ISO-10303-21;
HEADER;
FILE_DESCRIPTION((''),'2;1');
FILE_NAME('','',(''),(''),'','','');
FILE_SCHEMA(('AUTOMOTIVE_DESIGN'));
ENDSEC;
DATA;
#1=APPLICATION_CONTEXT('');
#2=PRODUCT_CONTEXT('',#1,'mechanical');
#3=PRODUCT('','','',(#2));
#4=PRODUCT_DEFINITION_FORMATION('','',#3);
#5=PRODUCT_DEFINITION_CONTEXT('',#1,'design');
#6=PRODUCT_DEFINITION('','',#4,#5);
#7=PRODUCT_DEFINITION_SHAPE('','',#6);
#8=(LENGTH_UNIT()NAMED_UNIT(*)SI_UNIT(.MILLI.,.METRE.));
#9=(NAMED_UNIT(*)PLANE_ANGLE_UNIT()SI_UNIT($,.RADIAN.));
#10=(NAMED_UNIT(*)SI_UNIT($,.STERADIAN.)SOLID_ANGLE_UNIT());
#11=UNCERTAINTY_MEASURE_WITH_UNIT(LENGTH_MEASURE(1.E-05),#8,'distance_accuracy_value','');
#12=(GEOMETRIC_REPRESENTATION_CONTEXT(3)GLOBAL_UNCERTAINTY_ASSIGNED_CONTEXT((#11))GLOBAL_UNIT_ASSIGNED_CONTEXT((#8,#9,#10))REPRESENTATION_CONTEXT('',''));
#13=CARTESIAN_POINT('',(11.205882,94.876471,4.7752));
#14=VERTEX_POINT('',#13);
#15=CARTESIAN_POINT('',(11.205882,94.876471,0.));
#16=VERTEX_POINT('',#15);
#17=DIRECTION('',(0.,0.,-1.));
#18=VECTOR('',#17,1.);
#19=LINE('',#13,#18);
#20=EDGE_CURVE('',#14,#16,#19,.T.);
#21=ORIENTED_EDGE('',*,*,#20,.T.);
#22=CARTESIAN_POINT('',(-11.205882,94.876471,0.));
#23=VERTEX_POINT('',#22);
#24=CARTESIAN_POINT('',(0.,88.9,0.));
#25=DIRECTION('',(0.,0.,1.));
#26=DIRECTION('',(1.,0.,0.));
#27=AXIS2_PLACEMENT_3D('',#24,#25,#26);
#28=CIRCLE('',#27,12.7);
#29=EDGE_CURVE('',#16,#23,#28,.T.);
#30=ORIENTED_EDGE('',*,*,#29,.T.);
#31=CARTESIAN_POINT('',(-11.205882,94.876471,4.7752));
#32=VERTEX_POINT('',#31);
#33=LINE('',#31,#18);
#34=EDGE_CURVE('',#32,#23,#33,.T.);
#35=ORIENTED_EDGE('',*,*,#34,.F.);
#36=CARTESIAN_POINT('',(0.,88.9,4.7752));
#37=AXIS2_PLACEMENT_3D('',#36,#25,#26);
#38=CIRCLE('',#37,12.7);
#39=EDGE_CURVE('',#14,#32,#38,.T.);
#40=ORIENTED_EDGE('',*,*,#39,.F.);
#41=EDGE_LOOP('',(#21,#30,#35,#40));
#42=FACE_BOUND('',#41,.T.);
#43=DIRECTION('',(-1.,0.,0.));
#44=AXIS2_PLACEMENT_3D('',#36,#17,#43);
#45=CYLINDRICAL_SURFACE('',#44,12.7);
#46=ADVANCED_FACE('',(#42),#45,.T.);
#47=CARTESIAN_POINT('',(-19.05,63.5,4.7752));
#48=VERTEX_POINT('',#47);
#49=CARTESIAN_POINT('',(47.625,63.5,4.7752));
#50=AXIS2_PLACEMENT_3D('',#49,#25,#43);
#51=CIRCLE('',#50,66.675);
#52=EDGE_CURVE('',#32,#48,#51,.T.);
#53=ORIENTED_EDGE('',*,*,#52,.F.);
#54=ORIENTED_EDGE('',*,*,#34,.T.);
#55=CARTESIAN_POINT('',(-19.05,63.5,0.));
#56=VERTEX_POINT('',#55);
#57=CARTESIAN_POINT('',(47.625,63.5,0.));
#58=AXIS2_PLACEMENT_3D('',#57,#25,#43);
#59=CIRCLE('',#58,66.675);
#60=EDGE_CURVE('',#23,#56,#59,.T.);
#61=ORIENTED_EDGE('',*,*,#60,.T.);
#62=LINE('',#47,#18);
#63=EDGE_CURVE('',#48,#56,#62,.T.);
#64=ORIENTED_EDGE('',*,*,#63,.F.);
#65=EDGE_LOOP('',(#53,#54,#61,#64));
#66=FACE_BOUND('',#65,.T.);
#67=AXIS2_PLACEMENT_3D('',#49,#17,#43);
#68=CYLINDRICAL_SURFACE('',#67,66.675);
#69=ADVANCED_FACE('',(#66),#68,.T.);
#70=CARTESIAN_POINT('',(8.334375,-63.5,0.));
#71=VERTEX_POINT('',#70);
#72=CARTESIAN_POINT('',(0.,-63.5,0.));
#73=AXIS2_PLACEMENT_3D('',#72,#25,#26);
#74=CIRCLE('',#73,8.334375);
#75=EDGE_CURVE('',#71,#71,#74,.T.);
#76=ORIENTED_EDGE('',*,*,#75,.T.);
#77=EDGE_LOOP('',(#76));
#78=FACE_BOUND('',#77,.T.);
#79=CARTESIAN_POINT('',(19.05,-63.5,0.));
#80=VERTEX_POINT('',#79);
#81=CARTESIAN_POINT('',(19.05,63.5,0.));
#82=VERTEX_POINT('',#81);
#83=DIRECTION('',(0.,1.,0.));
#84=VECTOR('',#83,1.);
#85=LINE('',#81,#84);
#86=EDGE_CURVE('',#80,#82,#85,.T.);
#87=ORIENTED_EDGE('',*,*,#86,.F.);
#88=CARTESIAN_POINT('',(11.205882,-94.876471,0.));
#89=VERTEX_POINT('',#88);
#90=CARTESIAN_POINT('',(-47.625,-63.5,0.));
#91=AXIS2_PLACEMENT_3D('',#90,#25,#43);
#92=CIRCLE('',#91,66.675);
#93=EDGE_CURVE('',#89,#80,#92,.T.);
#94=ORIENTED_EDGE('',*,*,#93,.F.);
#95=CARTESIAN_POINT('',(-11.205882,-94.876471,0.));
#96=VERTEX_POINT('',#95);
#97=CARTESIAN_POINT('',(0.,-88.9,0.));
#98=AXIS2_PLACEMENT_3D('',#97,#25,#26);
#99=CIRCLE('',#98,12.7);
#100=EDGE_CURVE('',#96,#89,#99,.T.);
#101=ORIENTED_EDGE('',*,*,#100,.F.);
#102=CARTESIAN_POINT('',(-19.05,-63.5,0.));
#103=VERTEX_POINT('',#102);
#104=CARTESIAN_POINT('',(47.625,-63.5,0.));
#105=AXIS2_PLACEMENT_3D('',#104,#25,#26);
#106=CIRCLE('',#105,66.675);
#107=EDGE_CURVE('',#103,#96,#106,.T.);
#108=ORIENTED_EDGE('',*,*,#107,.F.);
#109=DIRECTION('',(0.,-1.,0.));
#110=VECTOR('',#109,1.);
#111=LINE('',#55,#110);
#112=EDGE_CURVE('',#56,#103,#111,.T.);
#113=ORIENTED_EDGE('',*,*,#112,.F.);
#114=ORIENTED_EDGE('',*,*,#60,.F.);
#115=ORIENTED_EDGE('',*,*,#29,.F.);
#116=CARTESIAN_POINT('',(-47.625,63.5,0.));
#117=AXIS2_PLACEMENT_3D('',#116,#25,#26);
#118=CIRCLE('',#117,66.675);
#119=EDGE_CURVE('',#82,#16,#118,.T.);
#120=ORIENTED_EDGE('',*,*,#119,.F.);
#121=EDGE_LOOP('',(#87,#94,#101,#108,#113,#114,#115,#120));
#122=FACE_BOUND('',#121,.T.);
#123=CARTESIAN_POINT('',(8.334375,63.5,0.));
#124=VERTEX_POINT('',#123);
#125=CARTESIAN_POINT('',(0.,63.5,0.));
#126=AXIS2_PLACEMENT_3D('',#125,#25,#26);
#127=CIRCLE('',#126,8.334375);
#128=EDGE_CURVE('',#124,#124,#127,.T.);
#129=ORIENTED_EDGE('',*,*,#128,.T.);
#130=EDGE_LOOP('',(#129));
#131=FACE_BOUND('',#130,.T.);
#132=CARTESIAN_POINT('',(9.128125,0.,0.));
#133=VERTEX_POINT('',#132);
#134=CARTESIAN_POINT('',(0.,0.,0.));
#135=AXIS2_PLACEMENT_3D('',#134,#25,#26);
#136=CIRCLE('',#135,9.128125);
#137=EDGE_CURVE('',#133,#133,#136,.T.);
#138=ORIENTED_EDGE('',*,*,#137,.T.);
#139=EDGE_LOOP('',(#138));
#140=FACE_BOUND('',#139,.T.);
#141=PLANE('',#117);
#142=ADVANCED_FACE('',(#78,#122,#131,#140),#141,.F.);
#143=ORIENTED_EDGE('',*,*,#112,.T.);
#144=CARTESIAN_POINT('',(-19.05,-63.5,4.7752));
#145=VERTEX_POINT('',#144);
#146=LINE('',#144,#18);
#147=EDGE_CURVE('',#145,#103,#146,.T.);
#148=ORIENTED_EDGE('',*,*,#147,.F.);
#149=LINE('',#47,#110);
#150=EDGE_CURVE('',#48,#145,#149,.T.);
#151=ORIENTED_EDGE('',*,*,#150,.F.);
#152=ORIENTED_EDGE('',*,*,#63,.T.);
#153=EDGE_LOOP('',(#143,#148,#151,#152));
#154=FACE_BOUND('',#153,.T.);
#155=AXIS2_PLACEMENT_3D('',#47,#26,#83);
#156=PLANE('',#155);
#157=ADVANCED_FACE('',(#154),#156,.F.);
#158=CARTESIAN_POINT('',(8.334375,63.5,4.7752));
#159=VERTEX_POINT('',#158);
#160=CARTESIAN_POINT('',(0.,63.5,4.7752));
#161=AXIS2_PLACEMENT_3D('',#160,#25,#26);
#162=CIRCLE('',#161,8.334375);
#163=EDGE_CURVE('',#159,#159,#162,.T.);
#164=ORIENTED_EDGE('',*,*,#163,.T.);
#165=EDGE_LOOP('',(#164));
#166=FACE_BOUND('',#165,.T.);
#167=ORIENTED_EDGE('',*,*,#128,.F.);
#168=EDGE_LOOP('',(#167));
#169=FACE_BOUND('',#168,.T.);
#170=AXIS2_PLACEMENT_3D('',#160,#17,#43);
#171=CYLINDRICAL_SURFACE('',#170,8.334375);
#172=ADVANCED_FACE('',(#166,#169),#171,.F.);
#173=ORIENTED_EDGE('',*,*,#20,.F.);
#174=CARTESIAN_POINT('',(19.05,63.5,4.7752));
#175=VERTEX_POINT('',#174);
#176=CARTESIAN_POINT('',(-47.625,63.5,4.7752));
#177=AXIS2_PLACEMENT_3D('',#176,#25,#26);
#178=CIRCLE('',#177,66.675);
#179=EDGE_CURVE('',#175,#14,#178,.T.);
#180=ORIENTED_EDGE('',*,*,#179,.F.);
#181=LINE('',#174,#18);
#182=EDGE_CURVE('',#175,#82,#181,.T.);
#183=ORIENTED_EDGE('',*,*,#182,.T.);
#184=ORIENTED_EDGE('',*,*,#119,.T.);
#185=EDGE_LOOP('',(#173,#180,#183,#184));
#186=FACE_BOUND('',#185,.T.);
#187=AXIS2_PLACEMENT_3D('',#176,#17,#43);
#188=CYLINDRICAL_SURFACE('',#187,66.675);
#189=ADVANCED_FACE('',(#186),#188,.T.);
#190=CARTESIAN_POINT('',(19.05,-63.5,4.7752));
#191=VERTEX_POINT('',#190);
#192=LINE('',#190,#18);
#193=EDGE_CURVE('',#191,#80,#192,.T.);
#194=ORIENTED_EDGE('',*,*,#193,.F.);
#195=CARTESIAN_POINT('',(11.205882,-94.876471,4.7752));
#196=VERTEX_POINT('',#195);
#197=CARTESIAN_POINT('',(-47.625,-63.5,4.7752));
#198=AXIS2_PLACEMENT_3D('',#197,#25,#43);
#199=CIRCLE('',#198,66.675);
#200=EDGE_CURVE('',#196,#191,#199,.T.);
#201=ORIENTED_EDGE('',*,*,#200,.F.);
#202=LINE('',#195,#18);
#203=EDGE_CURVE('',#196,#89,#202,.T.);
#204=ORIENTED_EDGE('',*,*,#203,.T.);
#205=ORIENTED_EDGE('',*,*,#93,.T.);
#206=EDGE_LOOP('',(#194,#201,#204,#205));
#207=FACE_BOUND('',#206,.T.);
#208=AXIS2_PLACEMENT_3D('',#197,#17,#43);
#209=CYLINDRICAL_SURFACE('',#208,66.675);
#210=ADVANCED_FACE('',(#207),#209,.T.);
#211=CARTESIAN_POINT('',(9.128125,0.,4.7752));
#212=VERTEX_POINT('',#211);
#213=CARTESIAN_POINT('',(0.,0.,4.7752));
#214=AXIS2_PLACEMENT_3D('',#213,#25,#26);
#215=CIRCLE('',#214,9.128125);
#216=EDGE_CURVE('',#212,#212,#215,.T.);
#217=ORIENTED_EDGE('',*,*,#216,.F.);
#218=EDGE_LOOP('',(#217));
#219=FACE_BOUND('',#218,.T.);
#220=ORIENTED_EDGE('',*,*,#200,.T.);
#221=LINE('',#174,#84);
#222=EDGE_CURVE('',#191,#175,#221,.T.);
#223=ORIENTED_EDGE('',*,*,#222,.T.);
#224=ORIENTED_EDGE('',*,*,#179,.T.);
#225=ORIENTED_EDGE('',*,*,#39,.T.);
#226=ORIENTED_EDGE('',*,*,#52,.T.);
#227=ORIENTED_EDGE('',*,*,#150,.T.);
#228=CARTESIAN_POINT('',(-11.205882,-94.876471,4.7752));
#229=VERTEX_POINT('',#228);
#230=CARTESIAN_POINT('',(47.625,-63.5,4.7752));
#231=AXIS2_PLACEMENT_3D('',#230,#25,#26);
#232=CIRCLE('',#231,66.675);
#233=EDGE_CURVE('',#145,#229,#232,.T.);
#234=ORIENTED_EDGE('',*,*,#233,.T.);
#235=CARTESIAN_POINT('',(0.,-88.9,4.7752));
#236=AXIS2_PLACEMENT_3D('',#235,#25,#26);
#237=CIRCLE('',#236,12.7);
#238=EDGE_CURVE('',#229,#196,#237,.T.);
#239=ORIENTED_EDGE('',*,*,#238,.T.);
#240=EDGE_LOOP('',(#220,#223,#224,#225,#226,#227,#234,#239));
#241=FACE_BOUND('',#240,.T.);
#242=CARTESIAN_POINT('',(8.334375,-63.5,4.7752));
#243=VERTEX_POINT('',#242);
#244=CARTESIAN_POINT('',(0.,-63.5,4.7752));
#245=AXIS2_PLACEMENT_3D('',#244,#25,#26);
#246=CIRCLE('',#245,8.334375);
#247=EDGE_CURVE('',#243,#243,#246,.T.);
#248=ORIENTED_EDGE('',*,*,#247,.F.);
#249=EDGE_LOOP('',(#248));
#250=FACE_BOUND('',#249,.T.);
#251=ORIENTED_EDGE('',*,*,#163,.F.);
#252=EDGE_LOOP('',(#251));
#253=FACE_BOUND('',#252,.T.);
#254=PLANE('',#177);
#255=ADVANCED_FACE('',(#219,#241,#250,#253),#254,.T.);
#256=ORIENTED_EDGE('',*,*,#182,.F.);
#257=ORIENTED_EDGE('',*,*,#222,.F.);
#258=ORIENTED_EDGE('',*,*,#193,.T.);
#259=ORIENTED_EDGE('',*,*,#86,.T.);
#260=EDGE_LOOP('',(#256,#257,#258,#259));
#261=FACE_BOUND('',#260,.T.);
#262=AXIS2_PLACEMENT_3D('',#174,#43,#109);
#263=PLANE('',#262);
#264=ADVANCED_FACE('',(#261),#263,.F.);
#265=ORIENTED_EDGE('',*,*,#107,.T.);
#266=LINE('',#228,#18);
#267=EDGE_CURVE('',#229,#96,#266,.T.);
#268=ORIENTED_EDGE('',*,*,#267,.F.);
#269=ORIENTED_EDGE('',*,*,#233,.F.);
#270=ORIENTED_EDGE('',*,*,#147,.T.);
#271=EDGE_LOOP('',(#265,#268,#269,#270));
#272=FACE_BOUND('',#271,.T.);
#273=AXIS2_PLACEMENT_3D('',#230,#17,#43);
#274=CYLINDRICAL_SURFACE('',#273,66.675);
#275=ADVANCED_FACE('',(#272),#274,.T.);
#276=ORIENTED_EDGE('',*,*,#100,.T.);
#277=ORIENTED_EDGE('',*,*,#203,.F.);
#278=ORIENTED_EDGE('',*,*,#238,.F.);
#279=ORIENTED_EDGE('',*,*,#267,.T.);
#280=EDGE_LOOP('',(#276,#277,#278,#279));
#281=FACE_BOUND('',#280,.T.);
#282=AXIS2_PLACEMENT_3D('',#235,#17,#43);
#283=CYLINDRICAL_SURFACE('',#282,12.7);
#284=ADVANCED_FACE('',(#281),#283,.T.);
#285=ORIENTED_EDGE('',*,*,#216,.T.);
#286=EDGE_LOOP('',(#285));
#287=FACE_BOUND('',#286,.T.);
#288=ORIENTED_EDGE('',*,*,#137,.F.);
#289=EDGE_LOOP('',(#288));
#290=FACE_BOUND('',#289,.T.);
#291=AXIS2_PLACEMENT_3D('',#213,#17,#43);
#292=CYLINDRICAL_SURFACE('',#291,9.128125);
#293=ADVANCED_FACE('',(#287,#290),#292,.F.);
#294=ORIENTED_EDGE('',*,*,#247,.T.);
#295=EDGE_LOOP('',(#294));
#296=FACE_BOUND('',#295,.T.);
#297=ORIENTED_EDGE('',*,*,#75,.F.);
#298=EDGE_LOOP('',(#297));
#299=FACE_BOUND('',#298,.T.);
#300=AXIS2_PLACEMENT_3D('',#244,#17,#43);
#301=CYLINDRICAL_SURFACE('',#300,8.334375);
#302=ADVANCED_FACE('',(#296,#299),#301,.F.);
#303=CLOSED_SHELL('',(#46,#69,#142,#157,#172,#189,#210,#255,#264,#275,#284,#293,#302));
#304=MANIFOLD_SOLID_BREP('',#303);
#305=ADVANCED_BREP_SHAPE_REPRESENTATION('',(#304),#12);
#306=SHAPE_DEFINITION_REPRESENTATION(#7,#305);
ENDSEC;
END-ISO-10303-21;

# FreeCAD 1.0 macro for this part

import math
import FreeCAD as App
import Part
import Sketcher

V = App.Vector
Q = App.Units.Quantity

doc = App.newDocument("Part")
body = doc.addObject("PartDesign::Body", "Body")

# Sketch on XY plane
sketch1 = doc.addObject("Sketcher::SketchObject", "Sketch")
body.addObject(sketch1)
sketch1.AttachmentSupport = (doc.XY_Plane, [""])
sketch1.MapMode = "FlatFace"
sketch1.addGeometry(Part.LineSegment(V(19, -64, 0), V(19, 64, 0)), False)
sketch1.addGeometry(Part.ArcOfCircle(Part.Circle(V(-48, 63, 0), V(0, 0, 1), 67), math.radians(0), math.radians(28)), False)
sketch1.addGeometry(Part.ArcOfCircle(Part.Circle(V(0, 89, 0), V(0, 0, 1), 13), math.radians(28), math.radians(152)), False)
sketch1.addGeometry(Part.ArcOfCircle(Part.Circle(V(48, 63, 0), V(0, 0, 1), 67), math.radians(152), math.radians(180)), False)
sketch1.addGeometry(Part.LineSegment(V(-19, 64, 0), V(-19, -64, 0)), False)
sketch1.addGeometry(Part.ArcOfCircle(Part.Circle(V(48, -63, 0), V(0, 0, 1), 67), math.radians(-180), math.radians(-152)), False)
sketch1.addGeometry(Part.ArcOfCircle(Part.Circle(V(0, -89, 0), V(0, 0, 1), 13), math.radians(-152), math.radians(-28)), False)
sketch1.addGeometry(Part.ArcOfCircle(Part.Circle(V(-48, -63, 0), V(0, 0, 1), 67), math.radians(-28), math.radians(0)), False)
sketch1.addGeometry(Part.Circle(V(0, -64, 0), V(0, 0, 1), 8), False)
sketch1.addGeometry(Part.Circle(V(0, 0, 0), V(0, 0, 1), 9), False)
sketch1.addGeometry(Part.Circle(V(0, 64, 0), V(0, 0, 1), 8), False)
sketch1.addConstraint(Sketcher.Constraint("Tangent", 0, 2, 1, 1))
sketch1.addConstraint(Sketcher.Constraint("Tangent", 1, 2, 2, 1))
sketch1.addConstraint(Sketcher.Constraint("Tangent", 2, 2, 3, 1))
sketch1.addConstraint(Sketcher.Constraint("Tangent", 3, 2, 4, 1))
sketch1.addConstraint(Sketcher.Constraint("Tangent", 4, 2, 5, 1))
sketch1.addConstraint(Sketcher.Constraint("Tangent", 5, 2, 6, 1))
sketch1.addConstraint(Sketcher.Constraint("Tangent", 6, 2, 7, 1))
sketch1.addConstraint(Sketcher.Constraint("Tangent", 7, 2, 0, 1))
sketch1.addConstraint(Sketcher.Constraint("Vertical", 0))
sketch1.addConstraint(Sketcher.Constraint("Vertical", 4))
sketch1.addConstraint(Sketcher.Constraint("Coincident", 9, 3, -1, 1))
sketch1.addConstraint(Sketcher.Constraint("Equal", 1, 3))
sketch1.addConstraint(Sketcher.Constraint("Equal", 3, 5))
sketch1.addConstraint(Sketcher.Constraint("Equal", 2, 6))
sketch1.addConstraint(Sketcher.Constraint("Equal", 5, 7))
sketch1.addConstraint(Sketcher.Constraint("Equal", 8, 10))
sketch1.addConstraint(Sketcher.Constraint("Symmetric", 1, 3, 5, 3, -1, 1))
sketch1.addConstraint(Sketcher.Constraint("Symmetric", 8, 3, 10, 3, -1, 1))
sketch1.addConstraint(Sketcher.Constraint("Symmetric", 2, 3, 6, 3, -1))
sketch1.addConstraint(Sketcher.Constraint("PointOnObject", 8, 3, -2))
sketch1.addConstraint(Sketcher.Constraint("Horizontal", 7, 3, 8, 3))
sketch1.addConstraint(Sketcher.Constraint("Radius", 2, Q("0.5 in")))
sketch1.addConstraint(Sketcher.Constraint("DistanceY", 0, 1, 0, 2, Q("5 in")))
sketch1.addConstraint(Sketcher.Constraint("Diameter", 8, Q("0.65625 in")))
sketch1.addConstraint(Sketcher.Constraint("Diameter", 9, Q("0.71875 in")))
sketch1.addConstraint(Sketcher.Constraint("Radius", 1, Q("2.625 in")))
sketch1.addConstraint(Sketcher.Constraint("DistanceY", 1, 3, 2, 3, Q("1 in")))
pad1 = doc.addObject("PartDesign::Pad", "Pad")
body.addObject(pad1)
pad1.Profile = sketch1
pad1.Length = Q("0.188 in")

doc.recompute()
